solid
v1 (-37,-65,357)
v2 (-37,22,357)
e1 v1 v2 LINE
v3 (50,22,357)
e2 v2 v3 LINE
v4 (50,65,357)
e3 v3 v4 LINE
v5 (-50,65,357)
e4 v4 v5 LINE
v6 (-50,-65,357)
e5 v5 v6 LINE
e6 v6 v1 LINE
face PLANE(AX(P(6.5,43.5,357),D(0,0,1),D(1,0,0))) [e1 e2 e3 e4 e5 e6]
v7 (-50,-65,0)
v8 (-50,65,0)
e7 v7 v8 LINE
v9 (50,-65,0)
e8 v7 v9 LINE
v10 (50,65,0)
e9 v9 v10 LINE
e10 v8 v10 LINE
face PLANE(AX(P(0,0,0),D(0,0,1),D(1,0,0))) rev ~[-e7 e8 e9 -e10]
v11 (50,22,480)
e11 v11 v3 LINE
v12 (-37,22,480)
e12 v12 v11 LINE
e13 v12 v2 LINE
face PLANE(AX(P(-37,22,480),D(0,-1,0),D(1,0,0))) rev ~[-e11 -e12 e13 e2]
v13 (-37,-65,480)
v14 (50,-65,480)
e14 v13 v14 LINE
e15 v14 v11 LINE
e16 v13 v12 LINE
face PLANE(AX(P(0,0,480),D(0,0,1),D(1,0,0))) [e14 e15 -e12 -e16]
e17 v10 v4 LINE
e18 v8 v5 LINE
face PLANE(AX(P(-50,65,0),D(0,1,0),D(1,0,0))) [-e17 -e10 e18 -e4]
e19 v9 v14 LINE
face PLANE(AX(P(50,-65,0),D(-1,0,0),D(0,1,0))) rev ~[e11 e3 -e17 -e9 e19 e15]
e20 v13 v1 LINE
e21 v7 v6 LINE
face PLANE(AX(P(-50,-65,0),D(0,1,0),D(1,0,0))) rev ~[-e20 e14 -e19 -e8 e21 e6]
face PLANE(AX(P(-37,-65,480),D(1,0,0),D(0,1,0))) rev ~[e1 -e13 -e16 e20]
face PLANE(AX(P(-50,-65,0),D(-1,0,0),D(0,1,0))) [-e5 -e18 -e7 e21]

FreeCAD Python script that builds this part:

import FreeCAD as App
import Part
import Sketcher

V = App.Vector


def add_polygon(sketch, points):
    """Adds a closed chain of lines whose ends are joined by coincident constraints."""
    first, n = sketch.GeometryCount, len(points)
    for a, b in zip(points, points[1:] + points[:1]):
        sketch.addGeometry(Part.LineSegment(App.Vector(*a, 0), App.Vector(*b, 0)), False)
    for i in range(n):
        sketch.addConstraint(Sketcher.Constraint("Coincident", first + i, 2, first + (i + 1) % n, 1))

doc = App.newDocument("Part")
params = doc.addObject("Spreadsheet::Sheet", "Params")
for row, (alias, value) in enumerate([
    ("sketch1_width", "100 mm"),
    ("sketch1_height", "130 mm"),
    ("pad1_length", "480 mm"),
    ("sketch2_width", "100 mm"),
    ("sketch2_width2", "13 mm"),
    ("sketch2_height", "43 mm"),
    ("pocket1_length", "123 mm"),
], start=1):
    params.set(f"A{row}", alias)
    params.set(f"B{row}", "=" + value)
    params.setAlias(f"B{row}", alias)

body = doc.addObject("PartDesign::Body", "Body")

sketch1 = body.newObject("Sketcher::SketchObject", "Sketch")
sketch1.AttachmentSupport = (doc.getObject("XY_Plane"), [""])
sketch1.MapMode = "FlatFace"
add_polygon(sketch1, [(-50, 65), (-50, -65), (50, -65), (50, 65)])
sketch1.addConstraint([
    Sketcher.Constraint("Vertical", 0),
    Sketcher.Constraint("Horizontal", 1),
    Sketcher.Constraint("Vertical", 2),
    Sketcher.Constraint("Horizontal", 3),
    Sketcher.Constraint("Symmetric", 0, 2, 2, 2, -1, 1),
    Sketcher.Constraint("DistanceX", 1, 1, 1, 2, 100.0),
    Sketcher.Constraint("DistanceY", 0, 2, 0, 1, 130.0),
])
sketch1.setExpression("Constraints[9]", "Params.sketch1_width")
sketch1.setExpression("Constraints[10]", "Params.sketch1_height")
pad1 = body.newObject("PartDesign::Pad", "Pad")
pad1.Profile = sketch1
pad1.setExpression("Length", "Params.pad1_length")

sketch2 = body.newObject("Sketcher::SketchObject", "Sketch001")
sketch2.AttachmentSupport = (doc.getObject("XY_Plane"), [""])
sketch2.MapMode = "FlatFace"
sketch2.AttachmentOffset = App.Placement(V(0, 0, 480), App.Rotation())
add_polygon(sketch2, [(50, 22), (50, 65), (-50, 65), (-50, -65), (-37, -65), (-37, 22)])
sketch2.addConstraint([
    Sketcher.Constraint("Vertical", 0),
    Sketcher.Constraint("Horizontal", 1),
    Sketcher.Constraint("Vertical", 2),
    Sketcher.Constraint("Horizontal", 3),
    Sketcher.Constraint("Vertical", 4),
    Sketcher.Constraint("Horizontal", 5),
    Sketcher.Constraint("Symmetric", 0, 2, 2, 2, -1, 1),
    Sketcher.Constraint("Equal", 5, 4),
    Sketcher.Constraint("DistanceX", 1, 2, 1, 1, 100.0),
    Sketcher.Constraint("DistanceX", 3, 1, 3, 2, 13.0),
    Sketcher.Constraint("DistanceY", 0, 1, 0, 2, 43.0),
])
sketch2.setExpression("Constraints[14]", "Params.sketch2_width")
sketch2.setExpression("Constraints[15]", "Params.sketch2_width2")
sketch2.setExpression("Constraints[16]", "Params.sketch2_height")
pocket1 = body.newObject("PartDesign::Pocket", "Pocket")
pocket1.Profile = sketch2
pocket1.setExpression("Length", "Params.pocket1_length")

doc.recompute()
